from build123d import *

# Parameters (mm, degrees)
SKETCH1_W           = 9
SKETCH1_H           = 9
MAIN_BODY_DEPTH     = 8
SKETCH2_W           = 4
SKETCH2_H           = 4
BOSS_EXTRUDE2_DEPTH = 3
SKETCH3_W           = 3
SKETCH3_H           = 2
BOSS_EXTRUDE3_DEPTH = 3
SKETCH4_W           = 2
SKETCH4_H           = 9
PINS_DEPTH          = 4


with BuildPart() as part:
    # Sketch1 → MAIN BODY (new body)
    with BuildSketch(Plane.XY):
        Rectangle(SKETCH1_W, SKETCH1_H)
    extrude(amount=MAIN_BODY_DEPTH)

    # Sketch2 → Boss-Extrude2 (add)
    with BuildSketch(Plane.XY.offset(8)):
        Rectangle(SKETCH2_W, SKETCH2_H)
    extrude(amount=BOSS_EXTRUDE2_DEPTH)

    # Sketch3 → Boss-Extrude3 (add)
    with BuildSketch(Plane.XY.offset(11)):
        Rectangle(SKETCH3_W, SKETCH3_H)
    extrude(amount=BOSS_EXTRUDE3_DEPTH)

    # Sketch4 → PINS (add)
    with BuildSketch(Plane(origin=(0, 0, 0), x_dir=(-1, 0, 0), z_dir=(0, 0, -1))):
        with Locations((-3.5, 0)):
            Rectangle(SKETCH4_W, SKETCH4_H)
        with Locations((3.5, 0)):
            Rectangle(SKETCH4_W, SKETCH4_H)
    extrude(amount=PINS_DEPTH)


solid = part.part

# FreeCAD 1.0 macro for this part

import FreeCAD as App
import Part
import Sketcher

V = App.Vector


def add_polygon(sketch, points):
    """Adds a closed chain of lines whose ends are joined by coincident constraints."""
    first, n = sketch.GeometryCount, len(points)
    for a, b in zip(points, points[1:] + points[:1]):
        sketch.addGeometry(Part.LineSegment(App.Vector(*a, 0), App.Vector(*b, 0)), False)
    for i in range(n):
        sketch.addConstraint(Sketcher.Constraint("Coincident", first + i, 2, first + (i + 1) % n, 1))

doc = App.newDocument("Part")
body = doc.addObject("PartDesign::Body", "Body")

# Sketch on XY plane
sketch1 = body.newObject("Sketcher::SketchObject", "Sketch")
sketch1.AttachmentSupport = (doc.getObject("XY_Plane"), [""])
sketch1.MapMode = "FlatFace"
add_polygon(sketch1, [(-4, 4), (-4, -4), (4, -4), (4, 4)])  # lines 0-3
sketch1.addConstraint([
    Sketcher.Constraint("Vertical", 0),
    Sketcher.Constraint("Horizontal", 1),
    Sketcher.Constraint("Vertical", 2),
    Sketcher.Constraint("Horizontal", 3),
    Sketcher.Constraint("Symmetric", 0, 2, 2, 2, -1, 1),
    Sketcher.Constraint("Equal", 3, 0),
    Sketcher.Constraint("DistanceX", 1, 1, 1, 2, 9.0),
])
pad1 = body.newObject("PartDesign::Pad", "Pad")
pad1.Profile = sketch1
pad1.Length = 8

# Sketch on XY plane
sketch2 = body.newObject("Sketcher::SketchObject", "Sketch001")
sketch2.AttachmentSupport = (doc.getObject("XY_Plane"), [""])
sketch2.MapMode = "FlatFace"
sketch2.AttachmentOffset = App.Placement(V(0, 0, 8), App.Rotation())
add_polygon(sketch2, [(-2, 2), (-2, -2), (2, -2), (2, 2)])  # lines 0-3
sketch2.addConstraint([
    Sketcher.Constraint("Vertical", 0),
    Sketcher.Constraint("Horizontal", 1),
    Sketcher.Constraint("Vertical", 2),
    Sketcher.Constraint("Horizontal", 3),
    Sketcher.Constraint("Symmetric", 0, 2, 2, 2, -1, 1),
    Sketcher.Constraint("Equal", 3, 0),
    Sketcher.Constraint("DistanceX", 1, 1, 1, 2, 4.0),
])
pad2 = body.newObject("PartDesign::Pad", "Pad001")
pad2.Profile = sketch2
pad2.Length = 3

# Sketch on XY plane
sketch3 = body.newObject("Sketcher::SketchObject", "Sketch002")
sketch3.AttachmentSupport = (doc.getObject("XY_Plane"), [""])
sketch3.MapMode = "FlatFace"
sketch3.AttachmentOffset = App.Placement(V(0, 0, 11), App.Rotation())
add_polygon(sketch3, [(-1.5, 1), (-1.5, -1), (1.5, -1), (1.5, 1)])  # lines 0-3
sketch3.addConstraint([
    Sketcher.Constraint("Vertical", 0),
    Sketcher.Constraint("Horizontal", 1),
    Sketcher.Constraint("Vertical", 2),
    Sketcher.Constraint("Horizontal", 3),
    Sketcher.Constraint("Symmetric", 0, 2, 2, 2, -1, 1),
    Sketcher.Constraint("DistanceX", 1, 1, 1, 2, 3.0),
    Sketcher.Constraint("DistanceY", 0, 2, 0, 1, 2.0),
])
pad3 = body.newObject("PartDesign::Pad", "Pad002")
pad3.Profile = sketch3
pad3.Length = 3

# Sketch on XY plane
sketch4 = body.newObject("Sketcher::SketchObject", "Sketch003")
sketch4.AttachmentSupport = (doc.getObject("XY_Plane"), [""])
sketch4.MapMode = "FlatFace"
add_polygon(sketch4, [(4.5, 4.5), (4.5, -4.5), (2.5, -4.5), (2.5, 4.5)])  # lines 0-3
add_polygon(sketch4, [(-2.5, 4.5), (-2.5, -4.5), (-4.5, -4.5), (-4.5, 4.5)])  # lines 4-7
sketch4.addConstraint([
    Sketcher.Constraint("Vertical", 0),
    Sketcher.Constraint("Horizontal", 1),
    Sketcher.Constraint("Vertical", 2),
    Sketcher.Constraint("Horizontal", 3),
    Sketcher.Constraint("Vertical", 4),
    Sketcher.Constraint("Horizontal", 5),
    Sketcher.Constraint("Vertical", 6),
    Sketcher.Constraint("Horizontal", 7),
    Sketcher.Constraint("Symmetric", 2, 2, 4, 2, -1, 1),
    Sketcher.Constraint("Symmetric", 0, 2, 6, 2, -1, 1),
    Sketcher.Constraint("Horizontal", 1, 2, 4, 2),
    Sketcher.Constraint("DistanceX", 1, 2, 1, 1, 2.0),
    Sketcher.Constraint("DistanceY", 0, 2, 0, 1, 9.0),
    Sketcher.Constraint("DistanceX", 4, 2, 1, 2, 5.0),
])
pad4 = body.newObject("PartDesign::Pad", "Pad003")
pad4.Profile = sketch4
pad4.Length = 4
pad4.Reversed = True

doc.recompute()
